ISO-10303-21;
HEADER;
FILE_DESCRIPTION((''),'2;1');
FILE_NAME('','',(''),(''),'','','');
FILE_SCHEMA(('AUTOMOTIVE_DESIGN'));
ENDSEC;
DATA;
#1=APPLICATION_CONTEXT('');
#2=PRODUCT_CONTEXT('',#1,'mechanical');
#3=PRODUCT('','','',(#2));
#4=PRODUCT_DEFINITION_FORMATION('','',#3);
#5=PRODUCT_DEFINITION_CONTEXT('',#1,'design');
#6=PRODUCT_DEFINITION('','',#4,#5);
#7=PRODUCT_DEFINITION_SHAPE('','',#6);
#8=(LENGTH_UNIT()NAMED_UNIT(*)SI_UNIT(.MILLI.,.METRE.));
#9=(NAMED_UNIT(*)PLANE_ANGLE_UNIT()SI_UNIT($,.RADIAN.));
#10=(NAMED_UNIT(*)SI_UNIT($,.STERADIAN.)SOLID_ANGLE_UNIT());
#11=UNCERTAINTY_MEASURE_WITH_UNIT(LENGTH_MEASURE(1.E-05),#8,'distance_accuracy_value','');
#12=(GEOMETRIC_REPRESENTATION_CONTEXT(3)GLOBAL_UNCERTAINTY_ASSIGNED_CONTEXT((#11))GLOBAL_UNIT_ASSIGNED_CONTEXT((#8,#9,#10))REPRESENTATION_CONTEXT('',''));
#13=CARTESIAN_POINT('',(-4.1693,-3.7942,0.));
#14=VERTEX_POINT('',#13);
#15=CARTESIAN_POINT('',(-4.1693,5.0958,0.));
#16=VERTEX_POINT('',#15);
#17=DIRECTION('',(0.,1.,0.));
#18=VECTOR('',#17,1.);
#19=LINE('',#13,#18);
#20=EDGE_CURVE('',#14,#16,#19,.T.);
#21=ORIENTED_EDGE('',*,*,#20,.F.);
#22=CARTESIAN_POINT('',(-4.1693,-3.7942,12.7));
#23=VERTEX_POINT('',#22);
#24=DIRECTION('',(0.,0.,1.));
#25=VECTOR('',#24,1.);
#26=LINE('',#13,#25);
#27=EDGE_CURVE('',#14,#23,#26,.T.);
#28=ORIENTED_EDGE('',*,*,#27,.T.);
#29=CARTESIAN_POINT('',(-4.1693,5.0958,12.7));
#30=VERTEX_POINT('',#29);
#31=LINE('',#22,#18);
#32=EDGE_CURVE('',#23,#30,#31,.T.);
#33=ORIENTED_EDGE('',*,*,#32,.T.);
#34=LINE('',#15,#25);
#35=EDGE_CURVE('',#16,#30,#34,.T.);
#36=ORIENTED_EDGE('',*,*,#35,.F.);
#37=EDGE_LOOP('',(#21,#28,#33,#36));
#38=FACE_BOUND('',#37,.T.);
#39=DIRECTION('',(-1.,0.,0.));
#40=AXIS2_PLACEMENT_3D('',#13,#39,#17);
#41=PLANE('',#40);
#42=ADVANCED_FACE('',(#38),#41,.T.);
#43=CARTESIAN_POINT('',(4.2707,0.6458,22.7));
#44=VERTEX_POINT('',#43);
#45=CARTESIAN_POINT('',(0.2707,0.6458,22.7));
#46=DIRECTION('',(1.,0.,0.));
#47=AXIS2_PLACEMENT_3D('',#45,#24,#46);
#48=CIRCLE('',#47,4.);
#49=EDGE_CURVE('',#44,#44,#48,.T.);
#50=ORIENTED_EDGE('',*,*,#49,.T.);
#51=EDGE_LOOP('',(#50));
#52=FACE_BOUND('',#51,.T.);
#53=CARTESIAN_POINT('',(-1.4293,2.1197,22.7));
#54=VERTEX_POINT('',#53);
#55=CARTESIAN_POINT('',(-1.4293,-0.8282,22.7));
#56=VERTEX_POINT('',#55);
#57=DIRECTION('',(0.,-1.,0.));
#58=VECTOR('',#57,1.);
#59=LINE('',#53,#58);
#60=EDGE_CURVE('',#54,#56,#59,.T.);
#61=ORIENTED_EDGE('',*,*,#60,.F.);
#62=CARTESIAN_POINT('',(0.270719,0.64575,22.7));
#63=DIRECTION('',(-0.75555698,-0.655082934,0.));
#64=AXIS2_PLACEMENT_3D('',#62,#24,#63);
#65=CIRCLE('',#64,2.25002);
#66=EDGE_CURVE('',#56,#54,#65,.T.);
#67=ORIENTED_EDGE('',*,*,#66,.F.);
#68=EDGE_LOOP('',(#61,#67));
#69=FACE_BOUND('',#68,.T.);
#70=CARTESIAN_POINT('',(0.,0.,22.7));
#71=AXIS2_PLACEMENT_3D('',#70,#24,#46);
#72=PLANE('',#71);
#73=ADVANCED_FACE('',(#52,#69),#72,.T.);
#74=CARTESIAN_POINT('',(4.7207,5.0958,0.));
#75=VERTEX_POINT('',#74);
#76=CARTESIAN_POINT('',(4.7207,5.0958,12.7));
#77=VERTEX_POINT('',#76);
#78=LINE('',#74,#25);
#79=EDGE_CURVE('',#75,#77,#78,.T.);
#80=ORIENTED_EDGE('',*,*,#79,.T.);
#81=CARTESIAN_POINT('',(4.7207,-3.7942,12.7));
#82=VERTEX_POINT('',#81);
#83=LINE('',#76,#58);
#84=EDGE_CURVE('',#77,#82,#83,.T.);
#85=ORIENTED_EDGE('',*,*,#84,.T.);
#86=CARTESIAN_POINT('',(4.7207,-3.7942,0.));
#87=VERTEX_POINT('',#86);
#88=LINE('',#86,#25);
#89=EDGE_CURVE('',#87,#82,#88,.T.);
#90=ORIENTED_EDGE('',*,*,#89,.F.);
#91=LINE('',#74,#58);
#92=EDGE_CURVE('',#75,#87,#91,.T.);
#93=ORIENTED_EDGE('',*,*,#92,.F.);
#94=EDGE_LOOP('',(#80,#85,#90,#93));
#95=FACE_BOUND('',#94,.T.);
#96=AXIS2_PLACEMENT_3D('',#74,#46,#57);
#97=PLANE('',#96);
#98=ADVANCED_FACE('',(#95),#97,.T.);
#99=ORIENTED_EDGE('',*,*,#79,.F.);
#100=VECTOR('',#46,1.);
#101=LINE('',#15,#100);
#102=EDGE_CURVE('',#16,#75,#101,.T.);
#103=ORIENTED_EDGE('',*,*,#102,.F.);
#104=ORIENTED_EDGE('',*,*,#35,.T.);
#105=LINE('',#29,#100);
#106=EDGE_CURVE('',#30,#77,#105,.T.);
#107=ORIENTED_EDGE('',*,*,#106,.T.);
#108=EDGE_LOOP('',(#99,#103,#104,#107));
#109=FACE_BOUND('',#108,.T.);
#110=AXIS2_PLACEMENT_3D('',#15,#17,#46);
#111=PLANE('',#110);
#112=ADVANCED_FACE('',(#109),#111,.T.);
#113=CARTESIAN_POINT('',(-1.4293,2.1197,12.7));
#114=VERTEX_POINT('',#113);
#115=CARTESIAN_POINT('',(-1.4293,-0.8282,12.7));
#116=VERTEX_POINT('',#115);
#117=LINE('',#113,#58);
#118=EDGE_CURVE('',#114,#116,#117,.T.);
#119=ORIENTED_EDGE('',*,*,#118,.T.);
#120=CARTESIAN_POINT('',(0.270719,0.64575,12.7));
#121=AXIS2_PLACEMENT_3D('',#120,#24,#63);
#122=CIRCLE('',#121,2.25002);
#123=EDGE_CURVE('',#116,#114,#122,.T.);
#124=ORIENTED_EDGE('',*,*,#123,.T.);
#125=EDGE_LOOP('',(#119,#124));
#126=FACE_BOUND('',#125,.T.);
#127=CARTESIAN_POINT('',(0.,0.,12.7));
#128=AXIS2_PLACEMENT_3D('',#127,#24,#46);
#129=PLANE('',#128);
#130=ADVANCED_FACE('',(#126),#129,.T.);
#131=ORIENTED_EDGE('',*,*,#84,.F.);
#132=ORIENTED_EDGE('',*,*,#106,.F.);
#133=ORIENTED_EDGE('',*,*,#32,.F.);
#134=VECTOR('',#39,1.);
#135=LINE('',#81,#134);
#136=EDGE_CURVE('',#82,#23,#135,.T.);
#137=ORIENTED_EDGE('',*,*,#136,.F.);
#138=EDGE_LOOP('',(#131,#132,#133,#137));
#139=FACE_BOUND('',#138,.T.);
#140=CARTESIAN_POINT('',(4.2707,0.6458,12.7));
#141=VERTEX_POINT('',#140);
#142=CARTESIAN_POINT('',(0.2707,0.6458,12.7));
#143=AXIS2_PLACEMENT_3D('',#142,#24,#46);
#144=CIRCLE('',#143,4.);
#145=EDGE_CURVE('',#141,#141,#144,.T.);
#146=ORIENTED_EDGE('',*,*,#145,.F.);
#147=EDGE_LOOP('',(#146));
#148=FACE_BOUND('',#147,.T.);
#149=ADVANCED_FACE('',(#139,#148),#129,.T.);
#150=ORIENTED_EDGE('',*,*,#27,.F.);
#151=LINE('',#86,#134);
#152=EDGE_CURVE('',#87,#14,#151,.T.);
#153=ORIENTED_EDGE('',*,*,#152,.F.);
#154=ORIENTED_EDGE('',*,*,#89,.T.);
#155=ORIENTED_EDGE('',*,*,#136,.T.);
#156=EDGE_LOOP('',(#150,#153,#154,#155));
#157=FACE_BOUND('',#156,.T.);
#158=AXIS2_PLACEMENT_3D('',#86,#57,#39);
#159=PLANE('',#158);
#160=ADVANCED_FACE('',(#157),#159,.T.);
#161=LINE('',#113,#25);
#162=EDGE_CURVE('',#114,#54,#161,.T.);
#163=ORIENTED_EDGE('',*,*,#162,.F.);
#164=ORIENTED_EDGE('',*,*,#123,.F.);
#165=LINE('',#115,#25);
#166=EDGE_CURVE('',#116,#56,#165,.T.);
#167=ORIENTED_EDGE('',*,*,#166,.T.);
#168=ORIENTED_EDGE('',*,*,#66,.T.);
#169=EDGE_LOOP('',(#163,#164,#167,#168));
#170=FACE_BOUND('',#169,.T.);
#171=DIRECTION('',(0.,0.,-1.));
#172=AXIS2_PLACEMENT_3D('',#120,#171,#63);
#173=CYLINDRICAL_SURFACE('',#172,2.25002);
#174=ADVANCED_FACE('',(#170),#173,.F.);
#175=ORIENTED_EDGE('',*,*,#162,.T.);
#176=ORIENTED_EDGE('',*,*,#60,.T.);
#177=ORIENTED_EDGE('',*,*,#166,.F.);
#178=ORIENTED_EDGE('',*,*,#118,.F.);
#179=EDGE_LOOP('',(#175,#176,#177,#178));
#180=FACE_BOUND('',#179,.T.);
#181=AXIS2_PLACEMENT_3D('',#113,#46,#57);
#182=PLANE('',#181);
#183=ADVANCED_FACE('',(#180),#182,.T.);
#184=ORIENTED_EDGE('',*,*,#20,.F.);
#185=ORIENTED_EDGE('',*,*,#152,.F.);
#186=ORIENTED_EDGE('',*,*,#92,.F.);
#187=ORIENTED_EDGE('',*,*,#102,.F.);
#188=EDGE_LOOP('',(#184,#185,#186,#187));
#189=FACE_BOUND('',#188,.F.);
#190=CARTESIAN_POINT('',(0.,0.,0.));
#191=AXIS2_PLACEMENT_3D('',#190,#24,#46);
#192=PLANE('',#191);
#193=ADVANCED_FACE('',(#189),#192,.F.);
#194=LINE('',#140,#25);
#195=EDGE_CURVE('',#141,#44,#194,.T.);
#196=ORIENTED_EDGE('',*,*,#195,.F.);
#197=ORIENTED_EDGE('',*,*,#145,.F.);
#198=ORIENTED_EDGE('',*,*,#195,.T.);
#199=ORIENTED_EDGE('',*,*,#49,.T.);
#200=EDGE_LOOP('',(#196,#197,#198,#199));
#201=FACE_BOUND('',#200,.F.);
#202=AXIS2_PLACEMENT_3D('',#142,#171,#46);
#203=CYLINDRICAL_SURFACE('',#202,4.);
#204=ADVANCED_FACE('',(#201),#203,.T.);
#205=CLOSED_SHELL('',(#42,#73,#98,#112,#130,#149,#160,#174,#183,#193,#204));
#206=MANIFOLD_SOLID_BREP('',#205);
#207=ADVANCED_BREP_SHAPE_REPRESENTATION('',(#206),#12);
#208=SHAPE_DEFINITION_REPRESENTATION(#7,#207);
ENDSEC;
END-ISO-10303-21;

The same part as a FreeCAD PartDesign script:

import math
import FreeCAD as App
import Part
import Sketcher

V = App.Vector
Q = App.Units.Quantity


def add_polygon(sketch, points):
    """Adds a closed chain of lines whose ends are joined by coincident constraints."""
    first, n = sketch.GeometryCount, len(points)
    for a, b in zip(points, points[1:] + points[:1]):
        sketch.addGeometry(Part.LineSegment(App.Vector(*a, 0), App.Vector(*b, 0)), False)
    for i in range(n):
        sketch.addConstraint(Sketcher.Constraint("Coincident", first + i, 2, first + (i + 1) % n, 1))

doc = App.newDocument("Part")
params = doc.addObject("Spreadsheet::Sheet", "Params")
for row, (alias, value) in enumerate([
    ("sketch1_width", "8.89 mm"),
    ("pad1_length", "12.7 mm"),
    ("sketch2_diameter", "8 mm"),
    ("sketch2_radius", "2.25 mm"),
    ("pad2_length", "10 mm"),
], start=1):
    params.set(f"A{row}", alias)
    params.set(f"B{row}", "=" + value)
    params.setAlias(f"B{row}", alias)

body = doc.addObject("PartDesign::Body", "Body")

# Sketch on XY plane
sketch1 = body.newObject("Sketcher::SketchObject", "Sketch")
sketch1.AttachmentSupport = (doc.getObject("XY_Plane"), [""])
sketch1.MapMode = "FlatFace"
add_polygon(sketch1, [(5, 5), (-4, 5), (-4, -4), (5, -4)])  # lines 0-3
sketch1.addConstraint(Sketcher.Constraint("Horizontal", 0))
sketch1.addConstraint(Sketcher.Constraint("Vertical", 1))
sketch1.addConstraint(Sketcher.Constraint("Horizontal", 2))
sketch1.addConstraint(Sketcher.Constraint("Vertical", 3))
sketch1.addConstraint(Sketcher.Constraint("Equal", 2, 1))
sketch1.addConstraint(Sketcher.Constraint("DistanceX", 0, 2, 0, 1, Q("8.89 mm")))
sketch1.addConstraint(Sketcher.Constraint("DistanceX", 0, 2, -1, 1, Q("4.1693 mm")))
sketch1.addConstraint(Sketcher.Constraint("DistanceY", -1, 1, 0, 2, Q("5.0958 mm")))
sketch1.setExpression("Constraints[9]", "Params.sketch1_width")
pad1 = body.newObject("PartDesign::Pad", "Pad")
pad1.Profile = sketch1
pad1.setExpression("Length", "Params.pad1_length")

# Sketch on XY plane
sketch2 = body.newObject("Sketcher::SketchObject", "Sketch001")
sketch2.AttachmentSupport = (doc.getObject("XY_Plane"), [""])
sketch2.MapMode = "FlatFace"
sketch2.AttachmentOffset = App.Placement(V(0, 0, 12.7), App.Rotation())
sketch2.addGeometry(Part.Circle(V(0.3, 0.6, 0), V(0, 0, 1), 4), False)
sketch2.addGeometry(Part.ArcOfCircle(Part.Circle(V(0.3, 0.6, 0), V(0, 0, 1), 2.3), math.radians(-139), math.radians(139)), False)
sketch2.addGeometry(Part.LineSegment(V(-1.4, -0.8, 0), V(-1.4, 2.1, 0)), False)
sketch2.addConstraint(Sketcher.Constraint("Coincident", 1, 1, 2, 1))
sketch2.addConstraint(Sketcher.Constraint("Coincident", 2, 2, 1, 2))
sketch2.addConstraint(Sketcher.Constraint("Vertical", 2))
sketch2.addConstraint(Sketcher.Constraint("Coincident", 1, 3, 0, 3))
sketch2.addConstraint(Sketcher.Constraint("Diameter", 0, Q("8 mm")))
sketch2.addConstraint(Sketcher.Constraint("Radius", 1, Q("2.25 mm")))
sketch2.addConstraint(Sketcher.Constraint("DistanceX", 1, 1, 0, 3, Q("1.7 mm")))
sketch2.addConstraint(Sketcher.Constraint("DistanceX", -1, 1, 0, 3, Q("0.2707 mm")))
sketch2.addConstraint(Sketcher.Constraint("DistanceY", -1, 1, 0, 3, Q("0.6458 mm")))
sketch2.setExpression("Constraints[4]", "Params.sketch2_diameter")
sketch2.setExpression("Constraints[5]", "Params.sketch2_radius")
pad2 = body.newObject("PartDesign::Pad", "Pad001")
pad2.Profile = sketch2
pad2.setExpression("Length", "Params.pad2_length")

doc.recompute()
